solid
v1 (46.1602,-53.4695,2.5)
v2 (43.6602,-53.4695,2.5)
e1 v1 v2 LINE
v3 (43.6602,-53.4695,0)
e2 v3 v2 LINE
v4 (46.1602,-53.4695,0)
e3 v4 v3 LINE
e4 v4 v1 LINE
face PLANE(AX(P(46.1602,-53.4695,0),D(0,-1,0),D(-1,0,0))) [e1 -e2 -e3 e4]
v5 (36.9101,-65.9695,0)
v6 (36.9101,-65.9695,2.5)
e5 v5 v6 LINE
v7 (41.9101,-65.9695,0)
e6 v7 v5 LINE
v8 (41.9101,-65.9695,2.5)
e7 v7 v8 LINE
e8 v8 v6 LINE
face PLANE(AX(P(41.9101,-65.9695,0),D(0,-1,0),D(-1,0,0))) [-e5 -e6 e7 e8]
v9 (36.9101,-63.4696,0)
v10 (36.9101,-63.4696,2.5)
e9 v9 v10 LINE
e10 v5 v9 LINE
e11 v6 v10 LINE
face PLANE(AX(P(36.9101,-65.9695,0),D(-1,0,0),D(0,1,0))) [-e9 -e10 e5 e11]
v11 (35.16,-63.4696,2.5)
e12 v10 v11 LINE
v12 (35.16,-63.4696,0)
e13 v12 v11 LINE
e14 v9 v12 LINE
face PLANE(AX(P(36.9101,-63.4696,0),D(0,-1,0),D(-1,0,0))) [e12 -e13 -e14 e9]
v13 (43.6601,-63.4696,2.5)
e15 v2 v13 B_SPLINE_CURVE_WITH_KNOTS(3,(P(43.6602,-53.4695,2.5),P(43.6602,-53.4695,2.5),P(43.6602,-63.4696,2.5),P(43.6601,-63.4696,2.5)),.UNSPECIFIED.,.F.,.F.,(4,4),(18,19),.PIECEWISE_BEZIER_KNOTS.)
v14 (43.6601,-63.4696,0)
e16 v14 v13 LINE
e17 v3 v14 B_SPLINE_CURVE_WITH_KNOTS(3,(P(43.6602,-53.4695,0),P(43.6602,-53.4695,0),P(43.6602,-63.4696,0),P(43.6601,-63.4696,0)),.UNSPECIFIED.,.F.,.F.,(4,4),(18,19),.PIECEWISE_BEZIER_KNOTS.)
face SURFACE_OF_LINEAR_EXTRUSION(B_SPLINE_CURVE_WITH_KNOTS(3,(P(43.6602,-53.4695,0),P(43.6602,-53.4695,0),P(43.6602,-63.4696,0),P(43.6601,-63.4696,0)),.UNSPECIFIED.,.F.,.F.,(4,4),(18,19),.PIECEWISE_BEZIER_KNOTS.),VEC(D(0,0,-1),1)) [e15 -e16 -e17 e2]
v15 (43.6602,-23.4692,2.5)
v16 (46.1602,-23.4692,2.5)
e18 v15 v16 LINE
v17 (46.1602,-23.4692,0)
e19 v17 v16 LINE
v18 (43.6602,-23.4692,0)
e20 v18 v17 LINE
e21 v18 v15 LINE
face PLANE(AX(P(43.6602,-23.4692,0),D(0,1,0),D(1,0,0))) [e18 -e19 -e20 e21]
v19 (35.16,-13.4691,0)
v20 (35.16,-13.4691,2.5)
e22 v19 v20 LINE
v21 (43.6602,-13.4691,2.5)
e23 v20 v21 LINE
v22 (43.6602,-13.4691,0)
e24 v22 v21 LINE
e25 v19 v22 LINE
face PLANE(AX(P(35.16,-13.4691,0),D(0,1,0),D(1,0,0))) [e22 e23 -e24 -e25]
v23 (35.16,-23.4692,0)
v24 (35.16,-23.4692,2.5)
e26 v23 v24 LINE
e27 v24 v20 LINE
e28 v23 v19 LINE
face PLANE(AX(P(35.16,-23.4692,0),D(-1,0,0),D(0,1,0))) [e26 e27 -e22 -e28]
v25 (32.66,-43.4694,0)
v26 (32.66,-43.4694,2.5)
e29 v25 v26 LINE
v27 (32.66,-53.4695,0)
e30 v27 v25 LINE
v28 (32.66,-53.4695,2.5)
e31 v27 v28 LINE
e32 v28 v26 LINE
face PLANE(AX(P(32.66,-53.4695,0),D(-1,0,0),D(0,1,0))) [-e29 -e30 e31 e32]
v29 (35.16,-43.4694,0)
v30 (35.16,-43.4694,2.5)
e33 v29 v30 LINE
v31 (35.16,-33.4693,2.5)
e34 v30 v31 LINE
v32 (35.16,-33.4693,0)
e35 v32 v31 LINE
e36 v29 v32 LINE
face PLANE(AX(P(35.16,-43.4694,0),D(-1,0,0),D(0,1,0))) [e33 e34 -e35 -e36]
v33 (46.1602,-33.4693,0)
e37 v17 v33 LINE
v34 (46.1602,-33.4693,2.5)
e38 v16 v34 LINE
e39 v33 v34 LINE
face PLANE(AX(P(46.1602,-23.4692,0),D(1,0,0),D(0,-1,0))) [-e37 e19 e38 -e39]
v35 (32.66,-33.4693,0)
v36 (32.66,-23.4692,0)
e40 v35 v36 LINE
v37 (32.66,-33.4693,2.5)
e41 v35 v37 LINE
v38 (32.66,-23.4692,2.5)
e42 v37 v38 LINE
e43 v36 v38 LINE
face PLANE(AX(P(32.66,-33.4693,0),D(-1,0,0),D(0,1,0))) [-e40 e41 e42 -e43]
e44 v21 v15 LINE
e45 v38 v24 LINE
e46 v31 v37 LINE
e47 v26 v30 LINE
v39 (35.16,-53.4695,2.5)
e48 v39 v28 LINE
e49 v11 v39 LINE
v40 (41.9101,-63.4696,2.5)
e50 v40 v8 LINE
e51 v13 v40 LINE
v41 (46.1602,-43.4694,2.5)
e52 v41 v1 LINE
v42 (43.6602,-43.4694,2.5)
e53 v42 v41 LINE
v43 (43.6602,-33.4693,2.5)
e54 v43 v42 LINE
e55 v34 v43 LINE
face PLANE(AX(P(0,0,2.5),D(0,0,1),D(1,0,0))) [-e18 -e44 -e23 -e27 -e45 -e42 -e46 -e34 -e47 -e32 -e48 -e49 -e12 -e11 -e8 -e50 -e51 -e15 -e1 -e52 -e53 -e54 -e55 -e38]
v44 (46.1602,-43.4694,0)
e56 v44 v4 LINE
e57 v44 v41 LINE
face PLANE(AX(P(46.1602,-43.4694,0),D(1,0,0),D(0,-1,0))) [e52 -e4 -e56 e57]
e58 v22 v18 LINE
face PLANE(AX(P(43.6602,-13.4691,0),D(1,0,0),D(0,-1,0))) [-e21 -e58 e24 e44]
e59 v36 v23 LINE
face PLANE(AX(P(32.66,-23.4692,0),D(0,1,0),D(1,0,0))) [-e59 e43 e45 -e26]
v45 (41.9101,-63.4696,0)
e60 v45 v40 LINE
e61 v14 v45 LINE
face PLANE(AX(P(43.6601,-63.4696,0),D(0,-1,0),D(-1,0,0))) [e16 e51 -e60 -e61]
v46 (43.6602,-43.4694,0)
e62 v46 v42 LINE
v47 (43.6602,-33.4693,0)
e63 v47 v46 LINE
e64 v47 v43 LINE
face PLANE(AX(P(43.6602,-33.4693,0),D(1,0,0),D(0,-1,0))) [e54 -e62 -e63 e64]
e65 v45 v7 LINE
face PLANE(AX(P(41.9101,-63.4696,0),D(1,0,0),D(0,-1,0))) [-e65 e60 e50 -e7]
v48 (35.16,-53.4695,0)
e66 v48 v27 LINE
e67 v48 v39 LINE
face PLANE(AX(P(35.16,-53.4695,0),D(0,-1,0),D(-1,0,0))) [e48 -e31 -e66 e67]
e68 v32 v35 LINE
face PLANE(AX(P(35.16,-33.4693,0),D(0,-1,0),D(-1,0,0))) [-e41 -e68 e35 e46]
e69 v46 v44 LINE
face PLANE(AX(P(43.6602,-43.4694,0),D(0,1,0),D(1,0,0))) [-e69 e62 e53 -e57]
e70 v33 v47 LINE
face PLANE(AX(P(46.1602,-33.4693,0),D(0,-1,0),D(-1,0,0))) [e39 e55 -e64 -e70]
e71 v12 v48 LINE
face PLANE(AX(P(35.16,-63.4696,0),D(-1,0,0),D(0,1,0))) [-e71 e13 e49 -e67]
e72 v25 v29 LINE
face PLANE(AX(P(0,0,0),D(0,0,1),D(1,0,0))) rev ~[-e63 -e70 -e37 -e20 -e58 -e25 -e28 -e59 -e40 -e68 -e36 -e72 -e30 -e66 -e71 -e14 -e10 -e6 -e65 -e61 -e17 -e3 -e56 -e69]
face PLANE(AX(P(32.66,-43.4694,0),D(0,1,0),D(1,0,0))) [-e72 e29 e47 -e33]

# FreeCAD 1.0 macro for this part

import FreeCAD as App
import Part
import Sketcher
from FreeCAD import Vector
Q = App.Units.Quantity

doc = App.newDocument("Part")
params = doc.addObject("Spreadsheet::Sheet", "Params")
for row, (alias, value) in enumerate([
    ("sketch1_width", "5 mm"),
    ("sketch1_width2", "2.5 mm"),
    ("sketch1_width3", "1.75 mm"),
    ("pad1_length", "2.5 mm"),
], start=1):
    params.set(f"A{row}", alias)
    params.set(f"B{row}", "=" + value)
    params.setAlias(f"B{row}", alias)

body = doc.addObject("PartDesign::Body", "Body")

# Sketch on XY plane
sketch1 = doc.addObject("Sketcher::SketchObject", "Sketch")
body.addObject(sketch1)
sketch1.AttachmentSupport = (doc.XY_Plane, [""])
sketch1.MapMode = "FlatFace"
sketch1.addGeometry(Part.LineSegment(Vector(35.16, -53.4695, 0), Vector(35.16, -63.4696, 0)), False)
sketch1.addGeometry(Part.LineSegment(Vector(35.16, -63.4696, 0), Vector(36.9101, -63.4696, 0)), False)
sketch1.addGeometry(Part.LineSegment(Vector(36.9101, -63.4696, 0), Vector(36.9101, -65.9695, 0)), False)
sketch1.addGeometry(Part.LineSegment(Vector(36.9101, -65.9695, 0), Vector(41.9101, -65.9695, 0)), False)
sketch1.addGeometry(Part.LineSegment(Vector(41.9101, -65.9695, 0), Vector(41.9101, -63.4696, 0)), False)
sketch1.addGeometry(Part.LineSegment(Vector(41.9101, -63.4696, 0), Vector(43.6601, -63.4696, 0)), False)
sketch1.addGeometry(Part.BSplineCurve([Vector(43.6602, -53.4695, 0), Vector(43.6602, -53.4695, 0), Vector(43.6602, -63.4696, 0), Vector(43.6601, -63.4696, 0)], [4, 4], [18, 19], False, 3, [1, 1, 1, 1], False), False)
sketch1.addGeometry(Part.LineSegment(Vector(43.6602, -53.4695, 0), Vector(46.1602, -53.4695, 0)), False)
sketch1.addGeometry(Part.LineSegment(Vector(46.1602, -53.4695, 0), Vector(46.1602, -43.4694, 0)), False)
sketch1.addGeometry(Part.LineSegment(Vector(46.1602, -43.4694, 0), Vector(43.6602, -43.4694, 0)), False)
sketch1.addGeometry(Part.LineSegment(Vector(43.6602, -43.4694, 0), Vector(43.6602, -33.4693, 0)), False)
sketch1.addGeometry(Part.LineSegment(Vector(43.6602, -33.4693, 0), Vector(46.1602, -33.4693, 0)), False)
sketch1.addGeometry(Part.LineSegment(Vector(46.1602, -33.4693, 0), Vector(46.1602, -23.4692, 0)), False)
sketch1.addGeometry(Part.LineSegment(Vector(46.1602, -23.4692, 0), Vector(43.6602, -23.4692, 0)), False)
sketch1.addGeometry(Part.LineSegment(Vector(43.6602, -23.4692, 0), Vector(43.6602, -13.4691, 0)), False)
sketch1.addGeometry(Part.LineSegment(Vector(43.6602, -13.4691, 0), Vector(35.16, -13.4691, 0)), False)
sketch1.addGeometry(Part.LineSegment(Vector(35.16, -13.4691, 0), Vector(35.16, -23.4692, 0)), False)
sketch1.addGeometry(Part.LineSegment(Vector(35.16, -23.4692, 0), Vector(32.66, -23.4692, 0)), False)
sketch1.addGeometry(Part.LineSegment(Vector(32.66, -23.4692, 0), Vector(32.66, -33.4693, 0)), False)
sketch1.addGeometry(Part.LineSegment(Vector(32.66, -33.4693, 0), Vector(35.16, -33.4693, 0)), False)
sketch1.addGeometry(Part.LineSegment(Vector(35.16, -33.4693, 0), Vector(35.16, -43.4694, 0)), False)
sketch1.addGeometry(Part.LineSegment(Vector(35.16, -43.4694, 0), Vector(32.66, -43.4694, 0)), False)
sketch1.addGeometry(Part.LineSegment(Vector(32.66, -43.4694, 0), Vector(32.66, -53.4695, 0)), False)
sketch1.addGeometry(Part.LineSegment(Vector(32.66, -53.4695, 0), Vector(35.16, -53.4695, 0)), False)
sketch1.addConstraint(Sketcher.Constraint("Block", 6))
sketch1.addConstraint(Sketcher.Constraint("Coincident", 0, 2, 1, 1))
sketch1.addConstraint(Sketcher.Constraint("Coincident", 1, 2, 2, 1))
sketch1.addConstraint(Sketcher.Constraint("Coincident", 2, 2, 3, 1))
sketch1.addConstraint(Sketcher.Constraint("Coincident", 3, 2, 4, 1))
sketch1.addConstraint(Sketcher.Constraint("Coincident", 4, 2, 5, 1))
sketch1.addConstraint(Sketcher.Constraint("Coincident", 5, 2, 6, 2))
sketch1.addConstraint(Sketcher.Constraint("Coincident", 6, 1, 7, 1))
sketch1.addConstraint(Sketcher.Constraint("Coincident", 7, 2, 8, 1))
sketch1.addConstraint(Sketcher.Constraint("Coincident", 8, 2, 9, 1))
sketch1.addConstraint(Sketcher.Constraint("Coincident", 9, 2, 10, 1))
sketch1.addConstraint(Sketcher.Constraint("Coincident", 10, 2, 11, 1))
sketch1.addConstraint(Sketcher.Constraint("Coincident", 11, 2, 12, 1))
sketch1.addConstraint(Sketcher.Constraint("Coincident", 12, 2, 13, 1))
sketch1.addConstraint(Sketcher.Constraint("Coincident", 13, 2, 14, 1))
sketch1.addConstraint(Sketcher.Constraint("Coincident", 14, 2, 15, 1))
sketch1.addConstraint(Sketcher.Constraint("Coincident", 15, 2, 16, 1))
sketch1.addConstraint(Sketcher.Constraint("Coincident", 16, 2, 17, 1))
sketch1.addConstraint(Sketcher.Constraint("Coincident", 17, 2, 18, 1))
sketch1.addConstraint(Sketcher.Constraint("Coincident", 18, 2, 19, 1))
sketch1.addConstraint(Sketcher.Constraint("Coincident", 19, 2, 20, 1))
sketch1.addConstraint(Sketcher.Constraint("Coincident", 20, 2, 21, 1))
sketch1.addConstraint(Sketcher.Constraint("Coincident", 21, 2, 22, 1))
sketch1.addConstraint(Sketcher.Constraint("Coincident", 22, 2, 23, 1))
sketch1.addConstraint(Sketcher.Constraint("Coincident", 23, 2, 0, 1))
sketch1.addConstraint(Sketcher.Constraint("Vertical", 0))
sketch1.addConstraint(Sketcher.Constraint("Horizontal", 1))
sketch1.addConstraint(Sketcher.Constraint("Vertical", 2))
sketch1.addConstraint(Sketcher.Constraint("Horizontal", 3))
sketch1.addConstraint(Sketcher.Constraint("Vertical", 4))
sketch1.addConstraint(Sketcher.Constraint("Horizontal", 5))
sketch1.addConstraint(Sketcher.Constraint("Horizontal", 7))
sketch1.addConstraint(Sketcher.Constraint("Vertical", 8))
sketch1.addConstraint(Sketcher.Constraint("Horizontal", 9))
sketch1.addConstraint(Sketcher.Constraint("Vertical", 10))
sketch1.addConstraint(Sketcher.Constraint("Horizontal", 11))
sketch1.addConstraint(Sketcher.Constraint("Vertical", 12))
sketch1.addConstraint(Sketcher.Constraint("Horizontal", 13))
sketch1.addConstraint(Sketcher.Constraint("Vertical", 14))
sketch1.addConstraint(Sketcher.Constraint("Horizontal", 15))
sketch1.addConstraint(Sketcher.Constraint("Vertical", 16))
sketch1.addConstraint(Sketcher.Constraint("Horizontal", 17))
sketch1.addConstraint(Sketcher.Constraint("Vertical", 18))
sketch1.addConstraint(Sketcher.Constraint("Horizontal", 19))
sketch1.addConstraint(Sketcher.Constraint("Vertical", 20))
sketch1.addConstraint(Sketcher.Constraint("Horizontal", 21))
sketch1.addConstraint(Sketcher.Constraint("Vertical", 22))
sketch1.addConstraint(Sketcher.Constraint("Horizontal", 23))
sketch1.addConstraint(Sketcher.Constraint("Horizontal", 1, 2, 4, 2))
sketch1.addConstraint(Sketcher.Constraint("Horizontal", 13, 2, 16, 2))
sketch1.addConstraint(Sketcher.Constraint("Horizontal", 11, 2, 18, 2))
sketch1.addConstraint(Sketcher.Constraint("Horizontal", 9, 2, 20, 2))
sketch1.addConstraint(Sketcher.Constraint("Horizontal", 7, 2, 22, 2))
sketch1.addConstraint(Sketcher.Constraint("Vertical", 5, 2, 9, 2))
sketch1.addConstraint(Sketcher.Constraint("Vertical", 8, 2, 11, 2))
sketch1.addConstraint(Sketcher.Constraint("Vertical", 10, 2, 13, 2))
sketch1.addConstraint(Sketcher.Constraint("Vertical", 0, 2, 15, 2))
sketch1.addConstraint(Sketcher.Constraint("Vertical", 16, 2, 19, 2))
sketch1.addConstraint(Sketcher.Constraint("Vertical", 18, 2, 21, 2))
sketch1.addConstraint(Sketcher.Constraint("Equal", 1, 5))
sketch1.addConstraint(Sketcher.Constraint("Equal", 13, 17))
sketch1.addConstraint(Sketcher.Constraint("Equal", 23, 2))
sketch1.addConstraint(Sketcher.Constraint("Equal", 0, 8))
sketch1.addConstraint(Sketcher.Constraint("Equal", 8, 10))
sketch1.addConstraint(Sketcher.Constraint("Equal", 10, 12))
sketch1.addConstraint(Sketcher.Constraint("Equal", 12, 14))
sketch1.addConstraint(Sketcher.Constraint("DistanceX", 3, 1, 3, 2, Q("5 mm")))
sketch1.addConstraint(Sketcher.Constraint("DistanceX", 7, 1, 7, 2, Q("2.5 mm")))
sketch1.addConstraint(Sketcher.Constraint("DistanceX", 1, 1, 1, 2, Q("1.75 mm")))
sketch1.setExpression("Constraints[66]", "Params.sketch1_width")
sketch1.setExpression("Constraints[67]", "Params.sketch1_width2")
sketch1.setExpression("Constraints[68]", "Params.sketch1_width3")
pad1 = doc.addObject("PartDesign::Pad", "Pad")
body.addObject(pad1)
pad1.Profile = sketch1
pad1.setExpression("Length", "Params.pad1_length")

doc.recompute()
